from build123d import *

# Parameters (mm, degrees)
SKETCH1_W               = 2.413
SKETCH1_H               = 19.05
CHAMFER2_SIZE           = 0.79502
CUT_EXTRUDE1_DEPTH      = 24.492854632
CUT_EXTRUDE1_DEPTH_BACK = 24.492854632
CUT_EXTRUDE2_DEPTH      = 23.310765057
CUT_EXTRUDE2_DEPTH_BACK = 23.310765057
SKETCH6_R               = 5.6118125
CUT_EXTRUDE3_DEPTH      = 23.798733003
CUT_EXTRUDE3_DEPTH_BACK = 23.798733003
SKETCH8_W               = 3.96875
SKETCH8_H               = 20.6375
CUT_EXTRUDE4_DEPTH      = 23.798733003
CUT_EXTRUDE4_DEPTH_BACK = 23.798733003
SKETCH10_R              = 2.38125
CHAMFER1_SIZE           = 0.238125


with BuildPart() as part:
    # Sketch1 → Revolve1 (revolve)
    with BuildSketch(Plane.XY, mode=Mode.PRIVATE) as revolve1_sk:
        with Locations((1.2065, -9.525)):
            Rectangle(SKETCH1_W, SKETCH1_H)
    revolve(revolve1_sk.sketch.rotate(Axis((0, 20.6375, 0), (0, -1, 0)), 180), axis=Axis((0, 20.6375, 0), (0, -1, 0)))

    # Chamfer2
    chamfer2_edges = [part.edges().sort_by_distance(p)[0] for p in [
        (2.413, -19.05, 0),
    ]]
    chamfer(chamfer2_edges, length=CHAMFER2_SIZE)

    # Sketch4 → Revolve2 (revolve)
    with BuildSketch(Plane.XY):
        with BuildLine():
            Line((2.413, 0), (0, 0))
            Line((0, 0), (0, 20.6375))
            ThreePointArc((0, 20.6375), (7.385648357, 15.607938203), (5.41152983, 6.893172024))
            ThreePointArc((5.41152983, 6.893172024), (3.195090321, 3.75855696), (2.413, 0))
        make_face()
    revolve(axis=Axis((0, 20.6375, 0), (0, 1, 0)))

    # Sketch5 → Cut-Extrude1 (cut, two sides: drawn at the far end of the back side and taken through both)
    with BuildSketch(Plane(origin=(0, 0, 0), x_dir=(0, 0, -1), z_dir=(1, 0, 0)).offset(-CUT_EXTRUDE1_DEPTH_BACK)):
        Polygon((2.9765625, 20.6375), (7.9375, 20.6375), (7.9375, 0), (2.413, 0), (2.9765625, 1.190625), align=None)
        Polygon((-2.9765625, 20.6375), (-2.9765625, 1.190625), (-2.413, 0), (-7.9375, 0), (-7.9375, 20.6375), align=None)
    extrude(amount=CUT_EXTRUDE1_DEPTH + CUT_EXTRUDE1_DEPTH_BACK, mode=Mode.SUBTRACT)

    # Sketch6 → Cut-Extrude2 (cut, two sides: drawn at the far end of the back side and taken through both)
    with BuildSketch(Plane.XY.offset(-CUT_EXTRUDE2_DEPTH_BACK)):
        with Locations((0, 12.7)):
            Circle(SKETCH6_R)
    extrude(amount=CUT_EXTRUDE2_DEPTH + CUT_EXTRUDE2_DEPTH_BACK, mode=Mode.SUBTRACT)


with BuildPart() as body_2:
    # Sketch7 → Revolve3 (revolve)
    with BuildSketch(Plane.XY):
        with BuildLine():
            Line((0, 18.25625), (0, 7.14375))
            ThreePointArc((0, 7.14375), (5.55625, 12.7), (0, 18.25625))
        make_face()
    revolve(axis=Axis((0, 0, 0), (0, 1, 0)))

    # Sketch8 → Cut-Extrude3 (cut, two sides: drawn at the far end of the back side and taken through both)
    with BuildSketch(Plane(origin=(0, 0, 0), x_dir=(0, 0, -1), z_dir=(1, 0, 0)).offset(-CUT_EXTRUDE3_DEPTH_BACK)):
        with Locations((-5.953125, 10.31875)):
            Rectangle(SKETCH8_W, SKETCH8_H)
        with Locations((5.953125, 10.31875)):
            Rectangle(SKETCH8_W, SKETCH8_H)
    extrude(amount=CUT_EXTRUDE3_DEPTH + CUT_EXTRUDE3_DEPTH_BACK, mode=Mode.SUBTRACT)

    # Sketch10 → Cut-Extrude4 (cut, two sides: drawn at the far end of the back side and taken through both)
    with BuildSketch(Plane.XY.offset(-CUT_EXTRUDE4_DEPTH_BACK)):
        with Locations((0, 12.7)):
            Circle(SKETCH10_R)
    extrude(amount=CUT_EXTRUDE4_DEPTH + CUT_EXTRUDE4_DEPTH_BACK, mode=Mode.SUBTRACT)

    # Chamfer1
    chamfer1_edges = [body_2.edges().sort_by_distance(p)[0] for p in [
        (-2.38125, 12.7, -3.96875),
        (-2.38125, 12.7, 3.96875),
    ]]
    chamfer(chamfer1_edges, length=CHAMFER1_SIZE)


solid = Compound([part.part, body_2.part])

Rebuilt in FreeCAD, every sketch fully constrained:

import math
import FreeCAD as App
import Part
import Sketcher
from FreeCAD import Vector
Q = App.Units.Quantity


def edges_at(feature, points):
    """Names of the edges that pass closest to the given points."""
    edges = feature.Shape.Edges
    near = lambda p: min(range(len(edges)), key=lambda i: edges[i].distToShape(Part.Vertex(*p))[0])
    return sorted({f"Edge{near(p) + 1}" for p in points})

doc = App.newDocument("Part")
body = doc.addObject("PartDesign::Body", "Body")

# Sketch on XY plane
sketch1 = body.newObject("Sketcher::SketchObject", "Sketch")
sketch1.AttachmentSupport = (doc.getObject("XY_Plane"), [""])
sketch1.MapMode = "FlatFace"
sketch1.addGeometry([
    Part.LineSegment(Vector(0, 0, 0), Vector(0, -19.1, 0)),
    Part.LineSegment(Vector(0, -19.1, 0), Vector(2.4, -19.1, 0)),
    Part.LineSegment(Vector(2.4, -19.1, 0), Vector(2.4, 0, 0)),
    Part.LineSegment(Vector(2.4, 0, 0), Vector(0, 0, 0)),
], False)
sketch1.addConstraint([
    Sketcher.Constraint("Coincident", 0, 2, 1, 1),
    Sketcher.Constraint("Coincident", 1, 2, 2, 1),
    Sketcher.Constraint("Coincident", 2, 2, 3, 1),
    Sketcher.Constraint("Coincident", 3, 2, 0, 1),
    Sketcher.Constraint("Vertical", 0),
    Sketcher.Constraint("Horizontal", 1),
    Sketcher.Constraint("Vertical", 2),
    Sketcher.Constraint("Horizontal", 3),
    Sketcher.Constraint("Coincident", 3, 2, -1, 1),
    Sketcher.Constraint("DistanceY", 0, 2, 0, 1, Q("0.75 in")),
    Sketcher.Constraint("DistanceX", 1, 1, 1, 2, Q("0.095 in")),
])
revolution = body.newObject("PartDesign::Revolution", "Revolution")
revolution.Profile = sketch1
revolution.ReferenceAxis = (sketch1, ["V_Axis"])
revolution.Angle = 360
doc.recompute()

chamfer = body.newObject("PartDesign::Chamfer", "Chamfer")
chamfer.Base = (revolution, edges_at(revolution, [(2.413, -19.05, 0)]))
chamfer.Size = Q("0.0313 in")

# Sketch on XY plane
sketch2 = body.newObject("Sketcher::SketchObject", "Sketch001")
sketch2.AttachmentSupport = (doc.getObject("XY_Plane"), [""])
sketch2.MapMode = "FlatFace"
sketch2.addGeometry([
    Part.LineSegment(Vector(0, 0, 0), Vector(2.4, 0, 0)),
    Part.ArcOfCircle(Part.Circle(Vector(11.8, 0, 0), Vector(0, 0, 1), 9.4), math.radians(133), math.radians(180)),
    Part.ArcOfCircle(Part.Circle(Vector(0, 12.7, 0), Vector(0, 0, 1), 7.9), math.radians(-47), math.radians(90)),
    Part.LineSegment(Vector(0, 20.6, 0), Vector(0, 0, 0)),
], False)
sketch2.addConstraint([
    Sketcher.Constraint("Coincident", 0, 2, 1, 2),
    Sketcher.Constraint("Tangent", 1, 1, 2, 1),
    Sketcher.Constraint("Coincident", 2, 2, 3, 1),
    Sketcher.Constraint("Coincident", 3, 2, 0, 1),
    Sketcher.Constraint("Horizontal", 0),
    Sketcher.Constraint("Vertical", 3),
    Sketcher.Constraint("Coincident", 3, 2, -1, 1),
    Sketcher.Constraint("PointOnObject", 1, 3, -1),
    Sketcher.Constraint("PointOnObject", 2, 3, -2),
    Sketcher.Constraint("Radius", 2, Q("0.3125 in")),
    Sketcher.Constraint("DistanceY", -1, 1, 2, 3, Q("0.5 in")),
    Sketcher.Constraint("DistanceX", 0, 1, 0, 2, Q("0.095 in")),
])
revolution2 = body.newObject("PartDesign::Revolution", "Revolution001")
revolution2.Profile = sketch2
revolution2.ReferenceAxis = (sketch2, ["V_Axis"])
revolution2.Angle = 360

# Sketch on YZ plane
sketch3 = body.newObject("Sketcher::SketchObject", "Sketch002")
sketch3.AttachmentSupport = (doc.getObject("YZ_Plane"), [""])
sketch3.MapMode = "FlatFace"
sketch3.addGeometry([
    Part.LineSegment(Vector(20.6, -7.9, 0), Vector(20.6, -3, 0)),  # 0
    Part.LineSegment(Vector(20.6, -3, 0), Vector(1.2, -3, 0)),  # 1
    Part.LineSegment(Vector(1.2, -3, 0), Vector(0, -2.4, 0)),  # 2
    Part.LineSegment(Vector(0, -2.4, 0), Vector(0, -7.9, 0)),  # 3
    Part.LineSegment(Vector(0, -7.9, 0), Vector(20.6, -7.9, 0)),  # 4
    Part.LineSegment(Vector(1.2, 3, 0), Vector(20.6, 3, 0)),  # 5
    Part.LineSegment(Vector(20.6, 3, 0), Vector(20.6, 7.9, 0)),  # 6
    Part.LineSegment(Vector(20.6, 7.9, 0), Vector(0, 7.9, 0)),  # 7
    Part.LineSegment(Vector(0, 7.9, 0), Vector(0, 2.4, 0)),  # 8
    Part.LineSegment(Vector(0, 2.4, 0), Vector(1.2, 3, 0)),  # 9
], False)
sketch3.addConstraint([
    Sketcher.Constraint("Coincident", 0, 2, 1, 1),
    Sketcher.Constraint("Coincident", 1, 2, 2, 1),
    Sketcher.Constraint("Coincident", 2, 2, 3, 1),
    Sketcher.Constraint("Coincident", 3, 2, 4, 1),
    Sketcher.Constraint("Coincident", 4, 2, 0, 1),
    Sketcher.Constraint("Coincident", 5, 2, 6, 1),
    Sketcher.Constraint("Coincident", 6, 2, 7, 1),
    Sketcher.Constraint("Coincident", 7, 2, 8, 1),
    Sketcher.Constraint("Coincident", 8, 2, 9, 1),
    Sketcher.Constraint("Coincident", 9, 2, 5, 1),
    Sketcher.Constraint("Vertical", 0),
    Sketcher.Constraint("Horizontal", 1),
    Sketcher.Constraint("Vertical", 3),
    Sketcher.Constraint("Horizontal", 4),
    Sketcher.Constraint("Horizontal", 5),
    Sketcher.Constraint("Vertical", 6),
    Sketcher.Constraint("Horizontal", 7),
    Sketcher.Constraint("Vertical", 8),
    Sketcher.Constraint("Symmetric", 3, 2, 7, 2, -1, 1),
    Sketcher.Constraint("Symmetric", 0, 2, 5, 2, -1),
    Sketcher.Constraint("Symmetric", 2, 2, 8, 2, -1),
    Sketcher.Constraint("Vertical", 1, 2, 9, 2),
    Sketcher.Constraint("DistanceX", 1, 2, 1, 1, Q("0.765625 in")),
    Sketcher.Constraint("DistanceX", 4, 1, 4, 2, Q("0.8125 in")),
    Sketcher.Constraint("DistanceY", 2, 2, 8, 2, Q("0.19 in")),
    Sketcher.Constraint("DistanceY", 3, 2, 3, 1, Q("0.2175 in")),
    Sketcher.Constraint("DistanceY", 0, 2, 5, 2, Q("0.234375 in")),
])
pocket1 = body.newObject("PartDesign::Pocket", "Pocket")
pocket1.Profile = sketch3
pocket1.Type = "ThroughAll"
pocket1.Midplane = True

# Sketch on XY plane
sketch4 = body.newObject("Sketcher::SketchObject", "Sketch003")
sketch4.AttachmentSupport = (doc.getObject("XY_Plane"), [""])
sketch4.MapMode = "FlatFace"
sketch4.addGeometry(Part.Circle(Vector(0, 13, 0), Vector(0, 0, 1), 6), False)
sketch4.addConstraint([
    Sketcher.Constraint("PointOnObject", 0, 3, -2),
    Sketcher.Constraint("DistanceY", -1, 1, 0, 3, Q("0.5 in")),
    Sketcher.Constraint("Diameter", 0, 11.223625),
])
pocket2 = body.newObject("PartDesign::Pocket", "Pocket001")
pocket2.Profile = sketch4
pocket2.Type = "ThroughAll"
pocket2.Midplane = True
body2 = doc.addObject("PartDesign::Body", "Body001")

# Sketch on XY plane
sketch5 = body2.newObject("Sketcher::SketchObject", "Sketch004")
sketch5.AttachmentSupport = (doc.getObject("XY_Plane001"), [""])
sketch5.MapMode = "FlatFace"
sketch5.addGeometry([
    Part.LineSegment(Vector(0, 18, 0), Vector(0, 7, 0)),
    Part.ArcOfCircle(Part.Circle(Vector(0, 13, 0), Vector(0, 0, 1), 6), math.radians(-90), math.radians(90)),
], False)
sketch5.addConstraint([
    Sketcher.Constraint("Coincident", 0, 1, 1, 2),
    Sketcher.Constraint("Coincident", 1, 1, 0, 2),
    Sketcher.Constraint("Vertical", 0),
    Sketcher.Constraint("PointOnObject", 1, 3, -2),
    Sketcher.Constraint("PointOnObject", 0, 1, -2),
    Sketcher.Constraint("Radius", 1, Q("0.21875 in")),
    Sketcher.Constraint("DistanceY", -1, 1, 1, 3, Q("0.5 in")),
])
revolution3 = body2.newObject("PartDesign::Revolution", "Revolution002")
revolution3.Profile = sketch5
revolution3.ReferenceAxis = (sketch5, ["V_Axis"])
revolution3.Angle = 360

# Sketch on YZ plane
sketch6 = body2.newObject("Sketcher::SketchObject", "Sketch005")
sketch6.AttachmentSupport = (doc.getObject("YZ_Plane001"), [""])
sketch6.MapMode = "FlatFace"
sketch6.addGeometry([
    Part.LineSegment(Vector(20.6, 7.9, 0), Vector(0, 7.9, 0)),  # 0
    Part.LineSegment(Vector(0, 7.9, 0), Vector(0, 4, 0)),  # 1
    Part.LineSegment(Vector(0, 4, 0), Vector(20.6, 4, 0)),  # 2
    Part.LineSegment(Vector(20.6, 4, 0), Vector(20.6, 7.9, 0)),  # 3
    Part.LineSegment(Vector(20.6, -4, 0), Vector(0, -4, 0)),  # 4
    Part.LineSegment(Vector(0, -4, 0), Vector(0, -7.9, 0)),  # 5
    Part.LineSegment(Vector(0, -7.9, 0), Vector(20.6, -7.9, 0)),  # 6
    Part.LineSegment(Vector(20.6, -7.9, 0), Vector(20.6, -4, 0)),  # 7
], False)
sketch6.addConstraint([
    Sketcher.Constraint("Coincident", 0, 2, 1, 1),
    Sketcher.Constraint("Coincident", 1, 2, 2, 1),
    Sketcher.Constraint("Coincident", 2, 2, 3, 1),
    Sketcher.Constraint("Coincident", 3, 2, 0, 1),
    Sketcher.Constraint("Coincident", 4, 2, 5, 1),
    Sketcher.Constraint("Coincident", 5, 2, 6, 1),
    Sketcher.Constraint("Coincident", 6, 2, 7, 1),
    Sketcher.Constraint("Coincident", 7, 2, 4, 1),
    Sketcher.Constraint("Horizontal", 0),
    Sketcher.Constraint("Vertical", 1),
    Sketcher.Constraint("Horizontal", 2),
    Sketcher.Constraint("Vertical", 3),
    Sketcher.Constraint("Horizontal", 4),
    Sketcher.Constraint("Vertical", 5),
    Sketcher.Constraint("Horizontal", 6),
    Sketcher.Constraint("Vertical", 7),
    Sketcher.Constraint("Symmetric", 1, 2, 4, 2, -1, 1),
    Sketcher.Constraint("Symmetric", 0, 2, 5, 2, -1),
    Sketcher.Constraint("Vertical", 3, 2, 6, 2),
    Sketcher.Constraint("DistanceX", 0, 2, 0, 1, Q("0.8125 in")),
    Sketcher.Constraint("DistanceY", 1, 2, 1, 1, Q("0.15625 in")),
    Sketcher.Constraint("DistanceY", -1, 1, 0, 2, Q("0.3125 in")),
])
pocket3 = body2.newObject("PartDesign::Pocket", "Pocket002")
pocket3.Profile = sketch6
pocket3.Type = "ThroughAll"
pocket3.Midplane = True

# Sketch on XY plane
sketch7 = body2.newObject("Sketcher::SketchObject", "Sketch006")
sketch7.AttachmentSupport = (doc.getObject("XY_Plane001"), [""])
sketch7.MapMode = "FlatFace"
sketch7.addGeometry(Part.Circle(Vector(0, 12.7, 0), Vector(0, 0, 1), 2.4), False)
sketch7.addConstraint([
    Sketcher.Constraint("PointOnObject", 0, 3, -2),
    Sketcher.Constraint("Diameter", 0, Q("0.1875 in")),
    Sketcher.Constraint("DistanceY", -1, 1, 0, 3, Q("0.5 in")),
])
pocket4 = body2.newObject("PartDesign::Pocket", "Pocket003")
pocket4.Profile = sketch7
pocket4.Type = "ThroughAll"
pocket4.Midplane = True
doc.recompute()

chamfer2 = body2.newObject("PartDesign::Chamfer", "Chamfer001")
chamfer2.Base = (pocket4, edges_at(pocket4, [(-2.381, 12.7, -3.969), (-2.381, 12.7, 3.969)]))
chamfer2.Size = 0.238125

doc.recompute()
